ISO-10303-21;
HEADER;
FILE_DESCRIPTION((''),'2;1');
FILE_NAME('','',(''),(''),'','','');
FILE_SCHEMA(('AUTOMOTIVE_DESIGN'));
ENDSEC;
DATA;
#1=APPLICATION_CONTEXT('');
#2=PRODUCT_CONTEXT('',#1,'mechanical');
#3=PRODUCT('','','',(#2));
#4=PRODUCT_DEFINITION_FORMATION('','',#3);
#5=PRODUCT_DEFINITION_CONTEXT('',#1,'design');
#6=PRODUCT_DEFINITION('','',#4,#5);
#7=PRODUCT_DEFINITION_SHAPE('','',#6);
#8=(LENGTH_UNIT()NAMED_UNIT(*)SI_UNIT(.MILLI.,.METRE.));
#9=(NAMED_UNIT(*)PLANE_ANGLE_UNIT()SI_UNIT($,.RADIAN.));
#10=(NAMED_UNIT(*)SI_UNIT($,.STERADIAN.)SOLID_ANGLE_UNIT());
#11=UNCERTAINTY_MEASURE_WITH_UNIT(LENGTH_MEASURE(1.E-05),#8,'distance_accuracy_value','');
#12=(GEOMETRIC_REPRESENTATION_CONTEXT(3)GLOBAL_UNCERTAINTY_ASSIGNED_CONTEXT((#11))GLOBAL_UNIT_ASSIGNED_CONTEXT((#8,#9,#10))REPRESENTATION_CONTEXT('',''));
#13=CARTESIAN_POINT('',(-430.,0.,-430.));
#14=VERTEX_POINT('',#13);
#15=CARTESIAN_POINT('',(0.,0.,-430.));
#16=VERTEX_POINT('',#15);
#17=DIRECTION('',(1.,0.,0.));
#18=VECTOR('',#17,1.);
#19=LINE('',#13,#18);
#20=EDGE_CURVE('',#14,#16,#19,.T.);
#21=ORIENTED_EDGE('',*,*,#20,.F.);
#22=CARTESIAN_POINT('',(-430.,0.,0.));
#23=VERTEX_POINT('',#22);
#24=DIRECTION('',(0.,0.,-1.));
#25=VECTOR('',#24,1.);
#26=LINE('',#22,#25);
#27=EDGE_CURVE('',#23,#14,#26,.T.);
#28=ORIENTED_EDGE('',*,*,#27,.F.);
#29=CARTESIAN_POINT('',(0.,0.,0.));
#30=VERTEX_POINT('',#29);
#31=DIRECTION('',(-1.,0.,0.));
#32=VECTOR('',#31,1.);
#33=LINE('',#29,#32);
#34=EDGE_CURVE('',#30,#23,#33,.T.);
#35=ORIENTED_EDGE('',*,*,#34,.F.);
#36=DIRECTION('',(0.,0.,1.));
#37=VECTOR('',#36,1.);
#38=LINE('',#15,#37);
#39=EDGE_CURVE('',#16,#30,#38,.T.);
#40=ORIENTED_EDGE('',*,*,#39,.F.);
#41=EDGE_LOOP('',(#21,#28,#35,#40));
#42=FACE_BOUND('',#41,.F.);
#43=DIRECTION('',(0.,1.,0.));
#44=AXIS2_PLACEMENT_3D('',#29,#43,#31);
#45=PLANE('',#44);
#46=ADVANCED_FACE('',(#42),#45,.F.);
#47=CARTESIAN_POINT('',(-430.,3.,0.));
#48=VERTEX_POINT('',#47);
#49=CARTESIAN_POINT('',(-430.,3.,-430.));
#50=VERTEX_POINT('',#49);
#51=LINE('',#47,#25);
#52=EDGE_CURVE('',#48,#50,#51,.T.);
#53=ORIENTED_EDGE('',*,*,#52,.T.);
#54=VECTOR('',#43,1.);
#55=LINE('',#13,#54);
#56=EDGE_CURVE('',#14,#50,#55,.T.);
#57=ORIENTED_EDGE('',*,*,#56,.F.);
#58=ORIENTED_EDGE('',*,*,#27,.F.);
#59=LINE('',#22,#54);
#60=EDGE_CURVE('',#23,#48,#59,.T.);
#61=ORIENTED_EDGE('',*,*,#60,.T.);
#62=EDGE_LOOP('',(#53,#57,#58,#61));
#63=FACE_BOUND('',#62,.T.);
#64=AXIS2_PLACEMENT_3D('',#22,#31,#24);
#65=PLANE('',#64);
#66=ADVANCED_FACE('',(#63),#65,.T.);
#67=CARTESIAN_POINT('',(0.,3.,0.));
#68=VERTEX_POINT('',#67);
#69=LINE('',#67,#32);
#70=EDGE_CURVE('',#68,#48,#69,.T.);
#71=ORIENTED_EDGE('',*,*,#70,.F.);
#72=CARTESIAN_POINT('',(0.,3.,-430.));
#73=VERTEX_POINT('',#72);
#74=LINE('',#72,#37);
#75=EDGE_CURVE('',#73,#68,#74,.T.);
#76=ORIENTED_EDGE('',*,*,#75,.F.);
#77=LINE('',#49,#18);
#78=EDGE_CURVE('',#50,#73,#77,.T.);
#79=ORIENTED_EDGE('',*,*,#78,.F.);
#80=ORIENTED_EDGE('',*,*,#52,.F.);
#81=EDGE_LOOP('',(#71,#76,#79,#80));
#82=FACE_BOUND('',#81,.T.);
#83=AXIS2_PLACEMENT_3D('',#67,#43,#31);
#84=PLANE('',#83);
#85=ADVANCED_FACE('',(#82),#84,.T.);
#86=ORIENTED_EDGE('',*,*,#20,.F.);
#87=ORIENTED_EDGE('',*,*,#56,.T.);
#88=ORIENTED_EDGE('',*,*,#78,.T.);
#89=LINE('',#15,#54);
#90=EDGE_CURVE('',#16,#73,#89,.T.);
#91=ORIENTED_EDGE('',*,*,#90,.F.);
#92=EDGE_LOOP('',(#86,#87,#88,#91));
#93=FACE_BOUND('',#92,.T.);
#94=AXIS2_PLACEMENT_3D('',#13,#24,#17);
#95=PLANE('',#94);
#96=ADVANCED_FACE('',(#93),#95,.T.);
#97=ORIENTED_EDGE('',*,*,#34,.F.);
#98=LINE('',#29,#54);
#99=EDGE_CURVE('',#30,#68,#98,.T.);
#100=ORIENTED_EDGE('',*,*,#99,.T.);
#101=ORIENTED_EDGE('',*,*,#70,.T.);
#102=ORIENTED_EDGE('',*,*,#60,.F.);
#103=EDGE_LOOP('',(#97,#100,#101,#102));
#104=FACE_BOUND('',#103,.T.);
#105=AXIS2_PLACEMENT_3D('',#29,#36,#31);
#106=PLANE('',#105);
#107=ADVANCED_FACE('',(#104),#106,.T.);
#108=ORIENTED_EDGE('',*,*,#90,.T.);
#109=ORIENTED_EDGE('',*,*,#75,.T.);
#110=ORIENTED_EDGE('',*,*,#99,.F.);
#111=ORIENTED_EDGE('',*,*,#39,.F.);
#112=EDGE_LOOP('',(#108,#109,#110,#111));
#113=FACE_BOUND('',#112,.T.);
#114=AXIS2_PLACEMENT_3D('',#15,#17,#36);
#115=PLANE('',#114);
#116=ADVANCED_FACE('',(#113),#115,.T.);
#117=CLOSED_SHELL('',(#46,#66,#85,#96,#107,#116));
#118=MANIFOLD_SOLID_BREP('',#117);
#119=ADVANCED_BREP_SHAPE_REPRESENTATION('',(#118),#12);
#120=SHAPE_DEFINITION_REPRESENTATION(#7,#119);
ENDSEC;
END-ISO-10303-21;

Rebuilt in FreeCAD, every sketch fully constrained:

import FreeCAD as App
import Part
import Sketcher
Q = App.Units.Quantity


def add_polygon(sketch, points):
    """Adds a closed chain of lines whose ends are joined by coincident constraints."""
    first, n = sketch.GeometryCount, len(points)
    for a, b in zip(points, points[1:] + points[:1]):
        sketch.addGeometry(Part.LineSegment(App.Vector(*a, 0), App.Vector(*b, 0)), False)
    for i in range(n):
        sketch.addConstraint(Sketcher.Constraint("Coincident", first + i, 2, first + (i + 1) % n, 1))

doc = App.newDocument("Part")
params = doc.addObject("Spreadsheet::Sheet", "Params")
for row, (alias, value) in enumerate([
    ("sketch1_width", "430 mm"),
    ("pad1_length", "3 mm"),
], start=1):
    params.set(f"A{row}", alias)
    params.set(f"B{row}", "=" + value)
    params.setAlias(f"B{row}", alias)

body = doc.addObject("PartDesign::Body", "Body")

sketch1 = body.newObject("Sketcher::SketchObject", "Sketch")
sketch1.AttachmentSupport = (doc.getObject("XZ_Plane"), [""])
sketch1.MapMode = "FlatFace"
add_polygon(sketch1, [(-430, 0), (0, 0), (0, -430), (-430, -430)])
sketch1.addConstraint(Sketcher.Constraint("Horizontal", 0))
sketch1.addConstraint(Sketcher.Constraint("Vertical", 1))
sketch1.addConstraint(Sketcher.Constraint("Horizontal", 2))
sketch1.addConstraint(Sketcher.Constraint("Vertical", 3))
sketch1.addConstraint(Sketcher.Constraint("Coincident", 0, 2, -1, 1))
sketch1.addConstraint(Sketcher.Constraint("Equal", 2, 1))
sketch1.addConstraint(Sketcher.Constraint("DistanceX", 0, 1, 0, 2, Q("430 mm")))
sketch1.setExpression("Constraints[10]", "Params.sketch1_width")
pad1 = body.newObject("PartDesign::Pad", "Pad")
pad1.Profile = sketch1
pad1.setExpression("Length", "Params.pad1_length")
pad1.Reversed = True

doc.recompute()
